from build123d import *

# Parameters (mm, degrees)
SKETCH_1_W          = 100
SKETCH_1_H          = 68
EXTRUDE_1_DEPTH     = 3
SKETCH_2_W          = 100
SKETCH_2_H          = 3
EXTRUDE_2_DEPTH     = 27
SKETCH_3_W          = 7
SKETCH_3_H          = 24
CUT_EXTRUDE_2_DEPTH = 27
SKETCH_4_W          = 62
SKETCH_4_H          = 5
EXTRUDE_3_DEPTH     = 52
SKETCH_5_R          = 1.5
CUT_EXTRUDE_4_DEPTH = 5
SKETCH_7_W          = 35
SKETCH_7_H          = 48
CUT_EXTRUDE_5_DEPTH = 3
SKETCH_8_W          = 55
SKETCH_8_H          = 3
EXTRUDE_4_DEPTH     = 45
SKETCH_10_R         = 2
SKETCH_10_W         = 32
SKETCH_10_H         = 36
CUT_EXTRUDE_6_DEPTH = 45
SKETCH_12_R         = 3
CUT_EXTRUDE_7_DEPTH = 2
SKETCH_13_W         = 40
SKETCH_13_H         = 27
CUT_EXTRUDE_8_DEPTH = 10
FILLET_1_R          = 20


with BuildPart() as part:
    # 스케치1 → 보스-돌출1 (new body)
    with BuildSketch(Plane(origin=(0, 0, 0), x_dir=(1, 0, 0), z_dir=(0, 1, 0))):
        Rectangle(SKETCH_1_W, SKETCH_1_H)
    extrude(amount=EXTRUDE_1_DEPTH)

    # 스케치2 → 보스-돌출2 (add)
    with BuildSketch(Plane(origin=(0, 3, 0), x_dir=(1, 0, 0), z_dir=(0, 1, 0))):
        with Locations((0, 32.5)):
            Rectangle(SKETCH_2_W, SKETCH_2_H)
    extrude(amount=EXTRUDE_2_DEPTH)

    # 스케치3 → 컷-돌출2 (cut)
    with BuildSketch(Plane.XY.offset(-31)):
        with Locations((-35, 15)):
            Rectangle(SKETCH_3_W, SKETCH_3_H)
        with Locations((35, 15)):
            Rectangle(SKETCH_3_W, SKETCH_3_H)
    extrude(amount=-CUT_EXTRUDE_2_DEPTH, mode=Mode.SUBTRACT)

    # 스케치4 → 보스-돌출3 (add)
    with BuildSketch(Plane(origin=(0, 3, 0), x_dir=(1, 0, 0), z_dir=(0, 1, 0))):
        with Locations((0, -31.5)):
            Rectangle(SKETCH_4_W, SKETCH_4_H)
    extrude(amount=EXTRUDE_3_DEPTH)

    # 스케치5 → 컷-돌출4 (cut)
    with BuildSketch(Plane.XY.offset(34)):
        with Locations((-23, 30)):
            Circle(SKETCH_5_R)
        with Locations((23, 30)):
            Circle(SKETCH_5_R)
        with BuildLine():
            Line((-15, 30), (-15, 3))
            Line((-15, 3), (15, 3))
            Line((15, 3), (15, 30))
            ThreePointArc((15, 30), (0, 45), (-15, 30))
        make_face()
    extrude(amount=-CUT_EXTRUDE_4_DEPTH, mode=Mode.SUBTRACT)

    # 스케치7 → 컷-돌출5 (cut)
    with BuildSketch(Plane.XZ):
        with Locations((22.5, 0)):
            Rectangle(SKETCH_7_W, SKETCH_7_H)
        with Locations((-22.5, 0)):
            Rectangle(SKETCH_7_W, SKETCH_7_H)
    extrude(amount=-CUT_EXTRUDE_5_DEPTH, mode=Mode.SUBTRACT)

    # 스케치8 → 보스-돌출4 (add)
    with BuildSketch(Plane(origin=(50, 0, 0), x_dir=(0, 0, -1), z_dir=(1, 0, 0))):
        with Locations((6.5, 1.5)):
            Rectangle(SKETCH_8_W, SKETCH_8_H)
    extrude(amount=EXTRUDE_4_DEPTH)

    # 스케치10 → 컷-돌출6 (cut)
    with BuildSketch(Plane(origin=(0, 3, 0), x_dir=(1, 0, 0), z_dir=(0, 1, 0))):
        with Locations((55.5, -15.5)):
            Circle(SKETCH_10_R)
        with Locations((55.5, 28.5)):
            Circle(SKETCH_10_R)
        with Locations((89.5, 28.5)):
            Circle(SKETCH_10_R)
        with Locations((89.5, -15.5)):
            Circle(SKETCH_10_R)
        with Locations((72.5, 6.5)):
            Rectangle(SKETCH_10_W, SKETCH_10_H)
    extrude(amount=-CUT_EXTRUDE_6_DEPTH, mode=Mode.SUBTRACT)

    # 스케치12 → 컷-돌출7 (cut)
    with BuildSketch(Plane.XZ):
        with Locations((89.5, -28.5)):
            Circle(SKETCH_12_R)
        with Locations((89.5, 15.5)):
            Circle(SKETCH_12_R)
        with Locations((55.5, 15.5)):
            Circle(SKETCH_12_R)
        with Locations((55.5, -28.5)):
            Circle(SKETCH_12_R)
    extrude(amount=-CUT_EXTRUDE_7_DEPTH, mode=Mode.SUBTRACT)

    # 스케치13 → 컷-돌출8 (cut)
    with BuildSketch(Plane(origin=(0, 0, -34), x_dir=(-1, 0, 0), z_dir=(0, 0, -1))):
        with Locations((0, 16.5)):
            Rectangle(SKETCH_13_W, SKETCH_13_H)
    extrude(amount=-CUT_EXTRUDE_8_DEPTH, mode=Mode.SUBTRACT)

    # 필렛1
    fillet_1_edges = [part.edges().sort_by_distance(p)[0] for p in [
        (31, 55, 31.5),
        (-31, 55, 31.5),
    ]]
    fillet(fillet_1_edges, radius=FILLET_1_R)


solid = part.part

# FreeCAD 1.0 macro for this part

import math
import FreeCAD as App
import Part
import Sketcher

V = App.Vector


def edges_at(feature, points):
    """Names of the edges that pass closest to the given points."""
    edges = feature.Shape.Edges
    near = lambda p: min(range(len(edges)), key=lambda i: edges[i].distToShape(Part.Vertex(*p))[0])
    return sorted({f"Edge{near(p) + 1}" for p in points})


def add_polygon(sketch, points):
    """Adds a closed chain of lines whose ends are joined by coincident constraints."""
    first, n = sketch.GeometryCount, len(points)
    for a, b in zip(points, points[1:] + points[:1]):
        sketch.addGeometry(Part.LineSegment(App.Vector(*a, 0), App.Vector(*b, 0)), False)
    for i in range(n):
        sketch.addConstraint(Sketcher.Constraint("Coincident", first + i, 2, first + (i + 1) % n, 1))

doc = App.newDocument("Part")
body = doc.addObject("PartDesign::Body", "Body")

# Sketch on XZ plane
sketch1 = body.newObject("Sketcher::SketchObject", "Sketch")
sketch1.AttachmentSupport = (doc.getObject("XZ_Plane"), [""])
sketch1.MapMode = "FlatFace"
add_polygon(sketch1, [(-50, -34), (-50, 34), (50, 34), (50, -34)])  # lines 0-3
sketch1.addConstraint(Sketcher.Constraint("Vertical", 0))
sketch1.addConstraint(Sketcher.Constraint("Horizontal", 1))
sketch1.addConstraint(Sketcher.Constraint("Vertical", 2))
sketch1.addConstraint(Sketcher.Constraint("Horizontal", 3))
sketch1.addConstraint(Sketcher.Constraint("Symmetric", 0, 2, 2, 2, -1, 1))
sketch1.addConstraint(Sketcher.Constraint("DistanceX", 1, 1, 1, 2, 100.0))
sketch1.addConstraint(Sketcher.Constraint("DistanceY", 0, 1, 0, 2, 68.0))
pad1 = body.newObject("PartDesign::Pad", "Pad")
pad1.Profile = sketch1
pad1.Length = 3
pad1.Reversed = True

# Sketch on XZ plane
sketch2 = body.newObject("Sketcher::SketchObject", "Sketch001")
sketch2.AttachmentSupport = (doc.getObject("XZ_Plane"), [""])
sketch2.MapMode = "FlatFace"
sketch2.AttachmentOffset = App.Placement(V(0, 0, -3), App.Rotation())
add_polygon(sketch2, [(-50, -34), (-50, -31), (50, -31), (50, -34)])  # lines 0-3
sketch2.addConstraint(Sketcher.Constraint("Vertical", 0))
sketch2.addConstraint(Sketcher.Constraint("Horizontal", 1))
sketch2.addConstraint(Sketcher.Constraint("Vertical", 2))
sketch2.addConstraint(Sketcher.Constraint("Horizontal", 3))
sketch2.addConstraint(Sketcher.Constraint("DistanceX", 1, 1, 1, 2, 100.0))
sketch2.addConstraint(Sketcher.Constraint("DistanceY", 0, 1, 0, 2, 3.0))
sketch2.addConstraint(Sketcher.Constraint("DistanceX", 0, 2, -1, 1, 50.0))
sketch2.addConstraint(Sketcher.Constraint("DistanceY", 0, 2, -1, 1, 31.0))
pad2 = body.newObject("PartDesign::Pad", "Pad001")
pad2.Profile = sketch2
pad2.Length = 27
pad2.Reversed = True

# Sketch on XY plane
sketch3 = body.newObject("Sketcher::SketchObject", "Sketch002")
sketch3.AttachmentSupport = (doc.getObject("XY_Plane"), [""])
sketch3.MapMode = "FlatFace"
sketch3.AttachmentOffset = App.Placement(V(0, 0, -31), App.Rotation())
add_polygon(sketch3, [(-38, 27), (-38, 3), (-32, 3), (-32, 27)])  # lines 0-3
add_polygon(sketch3, [(32, 27), (32, 3), (38, 3), (38, 27)])  # lines 4-7
sketch3.addConstraint(Sketcher.Constraint("Vertical", 0))
sketch3.addConstraint(Sketcher.Constraint("Horizontal", 1))
sketch3.addConstraint(Sketcher.Constraint("Vertical", 2))
sketch3.addConstraint(Sketcher.Constraint("Horizontal", 3))
sketch3.addConstraint(Sketcher.Constraint("Vertical", 4))
sketch3.addConstraint(Sketcher.Constraint("Horizontal", 5))
sketch3.addConstraint(Sketcher.Constraint("Vertical", 6))
sketch3.addConstraint(Sketcher.Constraint("Horizontal", 7))
sketch3.addConstraint(Sketcher.Constraint("Symmetric", 1, 2, 4, 2, -2))
sketch3.addConstraint(Sketcher.Constraint("Symmetric", 3, 2, 6, 2, -2))
sketch3.addConstraint(Sketcher.Constraint("DistanceX", 1, 1, 1, 2, 7.0))
sketch3.addConstraint(Sketcher.Constraint("DistanceY", 0, 2, 0, 1, 24.0))
sketch3.addConstraint(Sketcher.Constraint("DistanceY", -1, 1, 0, 2, 3.0))
sketch3.addConstraint(Sketcher.Constraint("DistanceX", 1, 2, 4, 2, 63.0))
pocket1 = body.newObject("PartDesign::Pocket", "Pocket")
pocket1.Profile = sketch3
pocket1.Length = 27

# Sketch on XZ plane
sketch4 = body.newObject("Sketcher::SketchObject", "Sketch003")
sketch4.AttachmentSupport = (doc.getObject("XZ_Plane"), [""])
sketch4.MapMode = "FlatFace"
sketch4.AttachmentOffset = App.Placement(V(0, 0, -3), App.Rotation())
add_polygon(sketch4, [(-31, 29), (-31, 34), (31, 34), (31, 29)])  # lines 0-3
sketch4.addConstraint(Sketcher.Constraint("Vertical", 0))
sketch4.addConstraint(Sketcher.Constraint("Horizontal", 1))
sketch4.addConstraint(Sketcher.Constraint("Vertical", 2))
sketch4.addConstraint(Sketcher.Constraint("Horizontal", 3))
sketch4.addConstraint(Sketcher.Constraint("DistanceX", 1, 1, 1, 2, 62.0))
sketch4.addConstraint(Sketcher.Constraint("DistanceY", 0, 1, 0, 2, 5.0))
sketch4.addConstraint(Sketcher.Constraint("DistanceX", 0, 2, -1, 1, 31.0))
sketch4.addConstraint(Sketcher.Constraint("DistanceY", -1, 1, 0, 2, 34.0))
pad3 = body.newObject("PartDesign::Pad", "Pad002")
pad3.Profile = sketch4
pad3.Length = 52
pad3.Reversed = True

# Sketch on XY plane
sketch5 = body.newObject("Sketcher::SketchObject", "Sketch004")
sketch5.AttachmentSupport = (doc.getObject("XY_Plane"), [""])
sketch5.MapMode = "FlatFace"
sketch5.AttachmentOffset = App.Placement(V(0, 0, 34), App.Rotation())
sketch5.addGeometry(Part.Circle(V(-23, 30, 0), V(0, 0, 1), 1.5), False)
sketch5.addGeometry(Part.Circle(V(23, 30, 0), V(0, 0, 1), 1.5), False)
sketch5.addGeometry(Part.LineSegment(V(-15, 30, 0), V(-15, 3, 0)), False)
sketch5.addGeometry(Part.LineSegment(V(-15, 3, 0), V(15, 3, 0)), False)
sketch5.addGeometry(Part.LineSegment(V(15, 3, 0), V(15, 30, 0)), False)
sketch5.addGeometry(Part.ArcOfCircle(Part.Circle(V(0, 30, 0), V(0, 0, 1), 15), math.radians(0), math.radians(180)), False)
sketch5.addConstraint(Sketcher.Constraint("Coincident", 2, 2, 3, 1))
sketch5.addConstraint(Sketcher.Constraint("Coincident", 3, 2, 4, 1))
sketch5.addConstraint(Sketcher.Constraint("Tangent", 4, 2, 5, 1))
sketch5.addConstraint(Sketcher.Constraint("Tangent", 5, 2, 2, 1))
sketch5.addConstraint(Sketcher.Constraint("Vertical", 2))
sketch5.addConstraint(Sketcher.Constraint("Horizontal", 3))
sketch5.addConstraint(Sketcher.Constraint("Vertical", 4))
sketch5.addConstraint(Sketcher.Constraint("Equal", 0, 1))
sketch5.addConstraint(Sketcher.Constraint("Symmetric", 0, 3, 1, 3, -2))
sketch5.addConstraint(Sketcher.Constraint("PointOnObject", 5, 3, -2))
sketch5.addConstraint(Sketcher.Constraint("Horizontal", 1, 3, 5, 3))
sketch5.addConstraint(Sketcher.Constraint("Diameter", 0, 3.0))
sketch5.addConstraint(Sketcher.Constraint("Radius", 5, 15.0))
sketch5.addConstraint(Sketcher.Constraint("DistanceY", 2, 2, 2, 1, 27.0))
sketch5.addConstraint(Sketcher.Constraint("DistanceX", 0, 3, -1, 1, 23.0))
sketch5.addConstraint(Sketcher.Constraint("DistanceY", -1, 1, 0, 3, 30.0))
pocket2 = body.newObject("PartDesign::Pocket", "Pocket001")
pocket2.Profile = sketch5
pocket2.Length = 5

# Sketch on XZ plane
sketch6 = body.newObject("Sketcher::SketchObject", "Sketch005")
sketch6.AttachmentSupport = (doc.getObject("XZ_Plane"), [""])
sketch6.MapMode = "FlatFace"
add_polygon(sketch6, [(5, 24), (5, -24), (40, -24), (40, 24)])  # lines 0-3
add_polygon(sketch6, [(-40, 24), (-40, -24), (-5, -24), (-5, 24)])  # lines 4-7
sketch6.addConstraint(Sketcher.Constraint("Vertical", 0))
sketch6.addConstraint(Sketcher.Constraint("Horizontal", 1))
sketch6.addConstraint(Sketcher.Constraint("Vertical", 2))
sketch6.addConstraint(Sketcher.Constraint("Horizontal", 3))
sketch6.addConstraint(Sketcher.Constraint("Vertical", 4))
sketch6.addConstraint(Sketcher.Constraint("Horizontal", 5))
sketch6.addConstraint(Sketcher.Constraint("Vertical", 6))
sketch6.addConstraint(Sketcher.Constraint("Horizontal", 7))
sketch6.addConstraint(Sketcher.Constraint("Symmetric", 2, 2, 4, 2, -1, 1))
sketch6.addConstraint(Sketcher.Constraint("Symmetric", 0, 2, 6, 2, -1, 1))
sketch6.addConstraint(Sketcher.Constraint("Horizontal", 1, 2, 4, 2))
sketch6.addConstraint(Sketcher.Constraint("DistanceX", 1, 1, 1, 2, 35.0))
sketch6.addConstraint(Sketcher.Constraint("DistanceY", 0, 2, 0, 1, 48.0))
sketch6.addConstraint(Sketcher.Constraint("DistanceX", -1, 1, 0, 2, 5.0))
pocket3 = body.newObject("PartDesign::Pocket", "Pocket002")
pocket3.Profile = sketch6
pocket3.Length = 3

# Sketch on YZ plane
sketch7 = body.newObject("Sketcher::SketchObject", "Sketch006")
sketch7.AttachmentSupport = (doc.getObject("YZ_Plane"), [""])
sketch7.MapMode = "FlatFace"
sketch7.AttachmentOffset = App.Placement(V(0, 0, 50), App.Rotation())
add_polygon(sketch7, [(3, 21), (0, 21), (0, -34), (3, -34)])  # lines 0-3
sketch7.addConstraint(Sketcher.Constraint("Horizontal", 0))
sketch7.addConstraint(Sketcher.Constraint("Vertical", 1))
sketch7.addConstraint(Sketcher.Constraint("Horizontal", 2))
sketch7.addConstraint(Sketcher.Constraint("Vertical", 3))
sketch7.addConstraint(Sketcher.Constraint("PointOnObject", 0, 2, -2))
sketch7.addConstraint(Sketcher.Constraint("DistanceX", 0, 2, 0, 1, 3.0))
sketch7.addConstraint(Sketcher.Constraint("DistanceY", 1, 2, 1, 1, 55.0))
sketch7.addConstraint(Sketcher.Constraint("DistanceY", -1, 1, 0, 2, 21.0))
pad4 = body.newObject("PartDesign::Pad", "Pad003")
pad4.Profile = sketch7
pad4.Length = 45

# Sketch on XZ plane
sketch8 = body.newObject("Sketcher::SketchObject", "Sketch007")
sketch8.AttachmentSupport = (doc.getObject("XZ_Plane"), [""])
sketch8.MapMode = "FlatFace"
sketch8.AttachmentOffset = App.Placement(V(0, 0, -3), App.Rotation())
sketch8.addGeometry(Part.Circle(V(55.5, 15.5, 0), V(0, 0, 1), 2), False)  # 0
sketch8.addGeometry(Part.Circle(V(55.5, -28.5, 0), V(0, 0, 1), 2), False)  # 1
sketch8.addGeometry(Part.Circle(V(89.5, -28.5, 0), V(0, 0, 1), 2), False)  # 2
sketch8.addGeometry(Part.Circle(V(89.5, 15.5, 0), V(0, 0, 1), 2), False)  # 3
add_polygon(sketch8, [(56.5, -24.5), (56.5, 11.5), (88.5, 11.5), (88.5, -24.5)])  # lines 4-7
sketch8.addConstraint(Sketcher.Constraint("Vertical", 4))
sketch8.addConstraint(Sketcher.Constraint("Horizontal", 5))
sketch8.addConstraint(Sketcher.Constraint("Vertical", 6))
sketch8.addConstraint(Sketcher.Constraint("Horizontal", 7))
sketch8.addConstraint(Sketcher.Constraint("Equal", 0, 1))
sketch8.addConstraint(Sketcher.Constraint("Equal", 1, 2))
sketch8.addConstraint(Sketcher.Constraint("Equal", 2, 3))
sketch8.addConstraint(Sketcher.Constraint("Horizontal", 1, 3, 2, 3))
sketch8.addConstraint(Sketcher.Constraint("Horizontal", 0, 3, 3, 3))
sketch8.addConstraint(Sketcher.Constraint("Vertical", 0, 3, 1, 3))
sketch8.addConstraint(Sketcher.Constraint("Vertical", 2, 3, 3, 3))
sketch8.addConstraint(Sketcher.Constraint("Diameter", 0, 4.0))
sketch8.addConstraint(Sketcher.Constraint("DistanceX", 5, 1, 5, 2, 32.0))
sketch8.addConstraint(Sketcher.Constraint("DistanceY", 4, 1, 4, 2, 36.0))
sketch8.addConstraint(Sketcher.Constraint("DistanceY", 1, 3, 0, 3, 44.0))
sketch8.addConstraint(Sketcher.Constraint("DistanceX", 1, 3, 2, 3, 34.0))
sketch8.addConstraint(Sketcher.Constraint("DistanceX", 0, 3, 4, 2, 1.0))
sketch8.addConstraint(Sketcher.Constraint("DistanceY", 4, 2, 0, 3, 4.0))
sketch8.addConstraint(Sketcher.Constraint("DistanceX", -1, 1, 0, 3, 55.5))
sketch8.addConstraint(Sketcher.Constraint("DistanceY", -1, 1, 0, 3, 15.5))
pocket4 = body.newObject("PartDesign::Pocket", "Pocket003")
pocket4.Profile = sketch8
pocket4.Length = 45
pocket4.Reversed = True

# Sketch on XZ plane
sketch9 = body.newObject("Sketcher::SketchObject", "Sketch008")
sketch9.AttachmentSupport = (doc.getObject("XZ_Plane"), [""])
sketch9.MapMode = "FlatFace"
sketch9.addGeometry(Part.Circle(V(89.5, -28.5, 0), V(0, 0, 1), 3), False)
sketch9.addGeometry(Part.Circle(V(89.5, 15.5, 0), V(0, 0, 1), 3), False)
sketch9.addGeometry(Part.Circle(V(55.5, 15.5, 0), V(0, 0, 1), 3), False)
sketch9.addGeometry(Part.Circle(V(55.5, -28.5, 0), V(0, 0, 1), 3), False)
sketch9.addConstraint(Sketcher.Constraint("Equal", 0, 1))
sketch9.addConstraint(Sketcher.Constraint("Equal", 1, 2))
sketch9.addConstraint(Sketcher.Constraint("Equal", 2, 3))
sketch9.addConstraint(Sketcher.Constraint("Horizontal", 1, 3, 2, 3))
sketch9.addConstraint(Sketcher.Constraint("Horizontal", 0, 3, 3, 3))
sketch9.addConstraint(Sketcher.Constraint("Vertical", 0, 3, 1, 3))
sketch9.addConstraint(Sketcher.Constraint("Vertical", 2, 3, 3, 3))
sketch9.addConstraint(Sketcher.Constraint("Diameter", 0, 6.0))
sketch9.addConstraint(Sketcher.Constraint("DistanceY", 0, 3, 1, 3, 44.0))
sketch9.addConstraint(Sketcher.Constraint("DistanceX", 2, 3, 1, 3, 34.0))
sketch9.addConstraint(Sketcher.Constraint("DistanceX", -1, 1, 0, 3, 89.5))
sketch9.addConstraint(Sketcher.Constraint("DistanceY", 0, 3, -1, 1, 28.5))
pocket5 = body.newObject("PartDesign::Pocket", "Pocket004")
pocket5.Profile = sketch9
pocket5.Length = 2

# Sketch on XY plane
sketch10 = body.newObject("Sketcher::SketchObject", "Sketch009")
sketch10.AttachmentSupport = (doc.getObject("XY_Plane"), [""])
sketch10.MapMode = "FlatFace"
sketch10.AttachmentOffset = App.Placement(V(0, 0, -34), App.Rotation())
add_polygon(sketch10, [(20, 30), (20, 3), (-20, 3), (-20, 30)])  # lines 0-3
sketch10.addConstraint(Sketcher.Constraint("Vertical", 0))
sketch10.addConstraint(Sketcher.Constraint("Horizontal", 1))
sketch10.addConstraint(Sketcher.Constraint("Vertical", 2))
sketch10.addConstraint(Sketcher.Constraint("Horizontal", 3))
sketch10.addConstraint(Sketcher.Constraint("DistanceX", 1, 2, 1, 1, 40.0))
sketch10.addConstraint(Sketcher.Constraint("DistanceY", 0, 2, 0, 1, 27.0))
sketch10.addConstraint(Sketcher.Constraint("DistanceX", -1, 1, 0, 2, 20.0))
sketch10.addConstraint(Sketcher.Constraint("DistanceY", -1, 1, 0, 2, 3.0))
pocket6 = body.newObject("PartDesign::Pocket", "Pocket005")
pocket6.Profile = sketch10
pocket6.Length = 10
pocket6.Reversed = True
doc.recompute()

fillet = body.newObject("PartDesign::Fillet", "Fillet")
fillet.Base = (pocket6, edges_at(pocket6, [(31, 55, 31.5), (-31, 55, 31.5)]))
fillet.Radius = 20

doc.recompute()
